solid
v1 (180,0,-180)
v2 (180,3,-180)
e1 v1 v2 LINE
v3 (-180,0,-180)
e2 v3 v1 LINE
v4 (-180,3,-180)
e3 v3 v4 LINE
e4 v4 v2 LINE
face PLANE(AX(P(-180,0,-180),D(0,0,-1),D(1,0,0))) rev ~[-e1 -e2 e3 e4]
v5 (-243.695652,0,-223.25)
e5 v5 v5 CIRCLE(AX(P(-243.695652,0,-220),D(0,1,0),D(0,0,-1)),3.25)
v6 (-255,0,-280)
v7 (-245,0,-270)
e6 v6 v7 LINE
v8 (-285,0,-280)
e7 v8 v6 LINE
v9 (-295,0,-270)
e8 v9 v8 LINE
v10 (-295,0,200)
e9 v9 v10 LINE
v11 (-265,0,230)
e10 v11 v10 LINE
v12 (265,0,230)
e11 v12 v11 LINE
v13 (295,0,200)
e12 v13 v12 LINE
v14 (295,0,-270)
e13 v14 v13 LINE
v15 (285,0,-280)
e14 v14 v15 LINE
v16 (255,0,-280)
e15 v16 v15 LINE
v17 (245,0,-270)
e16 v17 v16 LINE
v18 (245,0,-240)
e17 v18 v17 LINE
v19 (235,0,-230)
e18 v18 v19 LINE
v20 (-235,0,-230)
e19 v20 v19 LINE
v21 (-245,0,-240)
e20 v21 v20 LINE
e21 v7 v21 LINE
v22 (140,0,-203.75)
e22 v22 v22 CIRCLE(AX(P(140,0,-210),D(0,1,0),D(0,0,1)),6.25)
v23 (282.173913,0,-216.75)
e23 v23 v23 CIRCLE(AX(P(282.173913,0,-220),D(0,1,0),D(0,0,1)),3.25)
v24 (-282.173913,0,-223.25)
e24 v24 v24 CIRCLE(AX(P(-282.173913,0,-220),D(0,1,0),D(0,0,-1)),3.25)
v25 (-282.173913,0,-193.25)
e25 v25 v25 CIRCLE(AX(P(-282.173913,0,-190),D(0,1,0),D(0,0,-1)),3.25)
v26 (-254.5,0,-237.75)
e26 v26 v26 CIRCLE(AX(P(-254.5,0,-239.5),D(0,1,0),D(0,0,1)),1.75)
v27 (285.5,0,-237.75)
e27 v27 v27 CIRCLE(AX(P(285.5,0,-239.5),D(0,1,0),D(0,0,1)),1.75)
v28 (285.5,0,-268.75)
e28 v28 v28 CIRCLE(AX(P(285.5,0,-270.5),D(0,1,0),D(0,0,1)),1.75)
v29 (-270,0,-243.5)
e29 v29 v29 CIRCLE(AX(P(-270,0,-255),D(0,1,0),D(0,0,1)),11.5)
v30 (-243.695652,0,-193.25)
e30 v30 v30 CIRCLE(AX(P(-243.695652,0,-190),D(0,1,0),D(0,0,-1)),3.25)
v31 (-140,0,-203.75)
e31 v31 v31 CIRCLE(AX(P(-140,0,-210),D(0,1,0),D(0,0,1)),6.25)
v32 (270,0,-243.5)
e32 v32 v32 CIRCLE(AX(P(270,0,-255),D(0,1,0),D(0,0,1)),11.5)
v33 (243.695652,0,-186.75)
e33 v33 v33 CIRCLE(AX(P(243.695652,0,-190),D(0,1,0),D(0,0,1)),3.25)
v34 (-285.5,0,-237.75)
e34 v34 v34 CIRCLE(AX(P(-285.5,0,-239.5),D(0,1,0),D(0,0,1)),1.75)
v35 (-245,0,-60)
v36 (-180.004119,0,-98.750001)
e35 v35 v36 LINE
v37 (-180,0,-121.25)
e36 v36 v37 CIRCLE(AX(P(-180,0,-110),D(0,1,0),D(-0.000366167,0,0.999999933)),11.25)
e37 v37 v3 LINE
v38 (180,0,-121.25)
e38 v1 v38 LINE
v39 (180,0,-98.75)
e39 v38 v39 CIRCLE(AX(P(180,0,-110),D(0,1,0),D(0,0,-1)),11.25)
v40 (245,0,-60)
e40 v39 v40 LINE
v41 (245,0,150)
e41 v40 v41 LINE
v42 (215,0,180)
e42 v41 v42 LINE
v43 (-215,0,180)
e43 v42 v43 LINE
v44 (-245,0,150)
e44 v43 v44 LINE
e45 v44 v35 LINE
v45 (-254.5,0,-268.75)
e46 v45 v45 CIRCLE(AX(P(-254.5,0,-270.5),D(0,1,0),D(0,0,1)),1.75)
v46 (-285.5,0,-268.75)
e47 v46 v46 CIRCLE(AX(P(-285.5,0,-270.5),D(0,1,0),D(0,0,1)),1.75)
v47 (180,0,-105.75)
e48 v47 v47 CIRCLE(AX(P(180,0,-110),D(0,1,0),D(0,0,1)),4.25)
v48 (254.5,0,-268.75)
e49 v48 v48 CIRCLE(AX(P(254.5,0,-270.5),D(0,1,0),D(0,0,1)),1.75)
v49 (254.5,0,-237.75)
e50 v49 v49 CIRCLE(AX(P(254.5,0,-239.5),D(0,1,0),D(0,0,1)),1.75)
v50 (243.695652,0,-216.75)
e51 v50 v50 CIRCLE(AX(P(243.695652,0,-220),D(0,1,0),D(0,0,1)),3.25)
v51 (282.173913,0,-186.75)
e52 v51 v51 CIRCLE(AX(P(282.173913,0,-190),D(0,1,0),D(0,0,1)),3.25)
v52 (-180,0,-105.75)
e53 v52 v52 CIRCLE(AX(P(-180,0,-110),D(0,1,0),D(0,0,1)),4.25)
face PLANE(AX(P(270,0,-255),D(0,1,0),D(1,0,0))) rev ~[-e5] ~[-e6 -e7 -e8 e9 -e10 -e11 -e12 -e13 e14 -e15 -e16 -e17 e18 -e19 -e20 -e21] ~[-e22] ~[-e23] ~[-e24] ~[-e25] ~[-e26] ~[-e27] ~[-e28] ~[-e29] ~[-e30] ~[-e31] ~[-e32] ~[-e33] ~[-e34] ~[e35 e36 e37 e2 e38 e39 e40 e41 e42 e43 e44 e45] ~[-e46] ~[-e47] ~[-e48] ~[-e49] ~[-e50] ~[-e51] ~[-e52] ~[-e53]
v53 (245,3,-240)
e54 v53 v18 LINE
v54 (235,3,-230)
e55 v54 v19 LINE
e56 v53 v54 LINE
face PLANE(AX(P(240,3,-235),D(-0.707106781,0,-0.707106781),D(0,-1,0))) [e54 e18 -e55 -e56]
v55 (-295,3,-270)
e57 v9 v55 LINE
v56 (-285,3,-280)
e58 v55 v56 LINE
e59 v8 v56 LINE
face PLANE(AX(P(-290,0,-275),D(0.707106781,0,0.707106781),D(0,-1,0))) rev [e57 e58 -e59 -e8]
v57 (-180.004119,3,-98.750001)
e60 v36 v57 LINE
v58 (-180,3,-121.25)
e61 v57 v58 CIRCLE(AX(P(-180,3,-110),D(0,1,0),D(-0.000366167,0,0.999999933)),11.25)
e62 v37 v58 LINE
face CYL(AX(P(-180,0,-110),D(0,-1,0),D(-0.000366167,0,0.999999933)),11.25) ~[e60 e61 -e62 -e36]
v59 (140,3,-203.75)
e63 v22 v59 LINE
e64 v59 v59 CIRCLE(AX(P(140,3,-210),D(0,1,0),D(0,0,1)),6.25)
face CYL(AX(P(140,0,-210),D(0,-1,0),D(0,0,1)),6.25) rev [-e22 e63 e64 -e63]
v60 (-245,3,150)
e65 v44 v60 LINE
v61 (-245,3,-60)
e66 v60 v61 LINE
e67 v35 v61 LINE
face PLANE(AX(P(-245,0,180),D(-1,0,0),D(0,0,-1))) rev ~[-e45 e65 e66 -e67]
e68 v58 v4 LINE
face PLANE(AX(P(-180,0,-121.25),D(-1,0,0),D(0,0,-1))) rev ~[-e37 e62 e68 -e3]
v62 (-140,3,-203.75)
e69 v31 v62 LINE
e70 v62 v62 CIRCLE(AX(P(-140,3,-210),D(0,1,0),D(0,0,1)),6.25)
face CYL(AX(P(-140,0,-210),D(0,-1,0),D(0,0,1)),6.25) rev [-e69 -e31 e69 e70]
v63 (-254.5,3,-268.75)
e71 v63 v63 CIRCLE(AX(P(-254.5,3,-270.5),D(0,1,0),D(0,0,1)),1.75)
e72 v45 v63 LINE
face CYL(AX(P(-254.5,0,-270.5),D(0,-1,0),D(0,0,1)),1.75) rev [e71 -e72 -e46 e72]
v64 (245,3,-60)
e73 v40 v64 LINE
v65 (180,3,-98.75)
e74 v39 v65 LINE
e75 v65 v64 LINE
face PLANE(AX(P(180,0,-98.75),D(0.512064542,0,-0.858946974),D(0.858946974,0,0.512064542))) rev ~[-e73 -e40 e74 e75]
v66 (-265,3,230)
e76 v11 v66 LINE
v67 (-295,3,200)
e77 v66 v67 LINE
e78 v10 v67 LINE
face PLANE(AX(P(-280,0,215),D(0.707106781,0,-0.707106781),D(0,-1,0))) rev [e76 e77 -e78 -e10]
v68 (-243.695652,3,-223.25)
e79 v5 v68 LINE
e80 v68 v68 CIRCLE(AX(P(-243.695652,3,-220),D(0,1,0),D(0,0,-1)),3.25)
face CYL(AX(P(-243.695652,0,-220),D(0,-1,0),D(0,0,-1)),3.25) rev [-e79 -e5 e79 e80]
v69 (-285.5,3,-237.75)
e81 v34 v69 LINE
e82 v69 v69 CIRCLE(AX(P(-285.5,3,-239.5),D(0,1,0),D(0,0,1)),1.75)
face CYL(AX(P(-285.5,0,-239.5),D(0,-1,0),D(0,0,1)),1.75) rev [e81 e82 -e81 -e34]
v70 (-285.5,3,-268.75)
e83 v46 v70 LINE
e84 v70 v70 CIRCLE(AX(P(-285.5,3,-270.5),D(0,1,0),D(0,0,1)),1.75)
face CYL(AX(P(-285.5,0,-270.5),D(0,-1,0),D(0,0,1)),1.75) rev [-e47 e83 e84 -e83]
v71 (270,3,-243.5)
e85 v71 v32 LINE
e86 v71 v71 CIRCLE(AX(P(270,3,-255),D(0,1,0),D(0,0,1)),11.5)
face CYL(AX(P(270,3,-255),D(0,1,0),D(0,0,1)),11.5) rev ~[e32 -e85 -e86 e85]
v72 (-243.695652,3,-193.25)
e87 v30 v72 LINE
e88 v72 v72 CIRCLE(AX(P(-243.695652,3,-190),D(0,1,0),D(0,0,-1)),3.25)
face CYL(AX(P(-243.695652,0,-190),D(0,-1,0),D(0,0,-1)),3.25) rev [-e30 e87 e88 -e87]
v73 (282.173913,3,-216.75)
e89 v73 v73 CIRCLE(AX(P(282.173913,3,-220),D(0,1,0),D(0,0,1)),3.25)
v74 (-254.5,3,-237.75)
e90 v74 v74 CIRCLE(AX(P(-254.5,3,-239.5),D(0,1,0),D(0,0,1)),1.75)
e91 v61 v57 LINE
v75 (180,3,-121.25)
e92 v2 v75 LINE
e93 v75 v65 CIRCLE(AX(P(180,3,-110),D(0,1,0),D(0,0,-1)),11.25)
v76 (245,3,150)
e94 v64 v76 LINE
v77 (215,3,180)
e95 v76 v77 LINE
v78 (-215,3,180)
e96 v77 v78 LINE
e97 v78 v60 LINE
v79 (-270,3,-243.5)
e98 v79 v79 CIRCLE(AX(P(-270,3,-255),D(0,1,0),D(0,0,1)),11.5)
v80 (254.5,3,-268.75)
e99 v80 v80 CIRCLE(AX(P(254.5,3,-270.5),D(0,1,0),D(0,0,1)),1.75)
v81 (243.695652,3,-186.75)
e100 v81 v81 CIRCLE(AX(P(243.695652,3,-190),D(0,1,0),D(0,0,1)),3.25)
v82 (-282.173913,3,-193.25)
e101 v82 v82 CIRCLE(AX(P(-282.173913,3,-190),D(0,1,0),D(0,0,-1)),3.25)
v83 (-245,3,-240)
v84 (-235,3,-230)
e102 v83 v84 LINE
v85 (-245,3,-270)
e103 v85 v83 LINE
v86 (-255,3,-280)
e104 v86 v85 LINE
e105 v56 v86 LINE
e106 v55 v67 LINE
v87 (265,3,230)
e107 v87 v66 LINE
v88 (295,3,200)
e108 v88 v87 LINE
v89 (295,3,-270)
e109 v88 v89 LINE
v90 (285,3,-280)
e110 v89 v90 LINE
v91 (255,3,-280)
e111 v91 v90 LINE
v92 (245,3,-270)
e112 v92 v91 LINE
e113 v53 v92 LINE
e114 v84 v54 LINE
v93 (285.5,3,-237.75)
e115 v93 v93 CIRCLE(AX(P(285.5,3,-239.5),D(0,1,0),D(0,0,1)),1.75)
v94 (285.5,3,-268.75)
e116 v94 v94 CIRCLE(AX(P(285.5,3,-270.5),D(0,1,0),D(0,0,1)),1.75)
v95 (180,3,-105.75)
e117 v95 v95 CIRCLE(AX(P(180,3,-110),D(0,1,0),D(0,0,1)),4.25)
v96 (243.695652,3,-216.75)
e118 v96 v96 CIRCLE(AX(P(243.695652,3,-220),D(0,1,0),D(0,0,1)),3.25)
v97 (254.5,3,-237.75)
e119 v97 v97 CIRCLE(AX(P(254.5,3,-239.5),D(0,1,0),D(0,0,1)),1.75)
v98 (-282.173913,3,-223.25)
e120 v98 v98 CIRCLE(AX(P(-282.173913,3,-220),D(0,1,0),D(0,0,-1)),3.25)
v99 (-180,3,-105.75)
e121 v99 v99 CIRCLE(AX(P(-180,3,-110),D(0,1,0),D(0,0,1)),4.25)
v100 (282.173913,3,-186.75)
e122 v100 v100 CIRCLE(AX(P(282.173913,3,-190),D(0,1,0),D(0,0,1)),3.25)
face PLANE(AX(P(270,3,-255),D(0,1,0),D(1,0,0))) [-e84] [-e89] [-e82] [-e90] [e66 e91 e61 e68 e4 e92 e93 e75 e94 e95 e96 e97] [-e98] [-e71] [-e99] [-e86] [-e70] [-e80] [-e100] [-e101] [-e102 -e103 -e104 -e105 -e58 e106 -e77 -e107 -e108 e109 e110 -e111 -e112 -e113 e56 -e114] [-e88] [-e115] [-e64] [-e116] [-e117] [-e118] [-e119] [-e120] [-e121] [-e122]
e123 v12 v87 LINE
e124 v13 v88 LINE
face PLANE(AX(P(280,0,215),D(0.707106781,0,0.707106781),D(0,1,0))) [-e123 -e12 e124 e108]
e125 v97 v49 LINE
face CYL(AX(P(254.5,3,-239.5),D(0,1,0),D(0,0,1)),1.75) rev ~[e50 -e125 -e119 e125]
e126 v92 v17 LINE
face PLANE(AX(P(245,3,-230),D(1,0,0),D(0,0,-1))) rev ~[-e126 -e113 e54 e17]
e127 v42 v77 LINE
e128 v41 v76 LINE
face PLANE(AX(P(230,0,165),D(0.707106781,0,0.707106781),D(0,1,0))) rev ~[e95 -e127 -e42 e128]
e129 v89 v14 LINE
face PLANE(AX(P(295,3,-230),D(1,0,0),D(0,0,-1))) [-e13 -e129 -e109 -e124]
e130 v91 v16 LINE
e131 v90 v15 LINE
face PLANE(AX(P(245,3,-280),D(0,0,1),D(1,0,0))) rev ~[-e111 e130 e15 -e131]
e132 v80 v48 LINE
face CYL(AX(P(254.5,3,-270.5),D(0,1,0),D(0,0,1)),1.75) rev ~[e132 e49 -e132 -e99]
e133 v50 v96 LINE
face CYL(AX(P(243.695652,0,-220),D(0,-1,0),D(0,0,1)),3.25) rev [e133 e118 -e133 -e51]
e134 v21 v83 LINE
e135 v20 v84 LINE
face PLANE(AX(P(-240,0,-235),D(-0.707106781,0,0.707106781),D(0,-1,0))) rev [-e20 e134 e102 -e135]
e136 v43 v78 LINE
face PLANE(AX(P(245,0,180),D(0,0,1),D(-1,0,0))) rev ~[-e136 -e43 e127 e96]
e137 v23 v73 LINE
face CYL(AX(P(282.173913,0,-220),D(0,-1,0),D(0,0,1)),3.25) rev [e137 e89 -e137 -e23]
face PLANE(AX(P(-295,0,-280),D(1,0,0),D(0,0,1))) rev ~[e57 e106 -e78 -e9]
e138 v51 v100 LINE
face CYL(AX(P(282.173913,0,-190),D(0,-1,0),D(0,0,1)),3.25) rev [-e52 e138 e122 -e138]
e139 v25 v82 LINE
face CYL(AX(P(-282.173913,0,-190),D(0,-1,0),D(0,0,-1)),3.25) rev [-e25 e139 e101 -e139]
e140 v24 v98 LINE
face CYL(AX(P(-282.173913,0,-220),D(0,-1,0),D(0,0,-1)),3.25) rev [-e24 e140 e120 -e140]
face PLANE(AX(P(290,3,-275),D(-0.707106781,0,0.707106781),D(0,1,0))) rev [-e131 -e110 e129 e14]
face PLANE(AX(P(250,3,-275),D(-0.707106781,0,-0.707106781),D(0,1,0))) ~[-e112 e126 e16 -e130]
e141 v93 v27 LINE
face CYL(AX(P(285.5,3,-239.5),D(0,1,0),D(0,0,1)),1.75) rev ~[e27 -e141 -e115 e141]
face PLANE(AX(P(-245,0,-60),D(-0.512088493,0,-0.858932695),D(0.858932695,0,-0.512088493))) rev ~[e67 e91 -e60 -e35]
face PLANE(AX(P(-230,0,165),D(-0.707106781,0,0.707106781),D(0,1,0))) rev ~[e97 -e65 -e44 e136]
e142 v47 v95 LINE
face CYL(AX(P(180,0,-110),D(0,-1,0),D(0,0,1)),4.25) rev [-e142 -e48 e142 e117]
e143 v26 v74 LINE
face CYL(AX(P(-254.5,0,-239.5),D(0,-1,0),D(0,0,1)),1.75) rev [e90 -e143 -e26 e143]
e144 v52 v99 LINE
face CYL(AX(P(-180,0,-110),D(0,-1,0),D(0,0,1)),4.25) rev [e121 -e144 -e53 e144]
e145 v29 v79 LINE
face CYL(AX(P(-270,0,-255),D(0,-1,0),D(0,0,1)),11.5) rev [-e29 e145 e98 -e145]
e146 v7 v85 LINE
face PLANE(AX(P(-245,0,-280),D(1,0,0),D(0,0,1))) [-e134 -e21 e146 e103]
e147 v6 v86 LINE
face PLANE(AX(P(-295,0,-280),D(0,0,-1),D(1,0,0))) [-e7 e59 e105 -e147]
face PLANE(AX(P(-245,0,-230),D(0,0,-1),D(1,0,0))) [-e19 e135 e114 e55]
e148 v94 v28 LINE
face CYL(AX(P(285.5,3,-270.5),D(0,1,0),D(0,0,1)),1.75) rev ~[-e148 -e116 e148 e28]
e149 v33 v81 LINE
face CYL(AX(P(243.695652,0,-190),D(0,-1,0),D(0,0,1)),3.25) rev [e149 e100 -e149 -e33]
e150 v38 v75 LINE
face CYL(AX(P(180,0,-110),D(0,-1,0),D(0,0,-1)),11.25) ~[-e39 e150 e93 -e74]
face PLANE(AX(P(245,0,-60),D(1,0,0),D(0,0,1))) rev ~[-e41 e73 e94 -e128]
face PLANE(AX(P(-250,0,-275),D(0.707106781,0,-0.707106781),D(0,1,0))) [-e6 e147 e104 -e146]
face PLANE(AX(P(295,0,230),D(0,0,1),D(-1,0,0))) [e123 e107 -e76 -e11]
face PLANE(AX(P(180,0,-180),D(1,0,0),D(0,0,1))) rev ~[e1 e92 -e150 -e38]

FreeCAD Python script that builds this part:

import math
import FreeCAD as App
import Part
import Sketcher

V = App.Vector
Q = App.Units.Quantity


def edges_at(feature, points):
    """Names of the edges that pass closest to the given points."""
    edges = feature.Shape.Edges
    near = lambda p: min(range(len(edges)), key=lambda i: edges[i].distToShape(Part.Vertex(*p))[0])
    return sorted({f"Edge{near(p) + 1}" for p in points})

doc = App.newDocument("Part")
body = doc.addObject("PartDesign::Body", "Body")

sketch1 = body.newObject("Sketcher::SketchObject", "Sketch")
sketch1.AttachmentSupport = (doc.getObject("XZ_Plane"), [""])
sketch1.MapMode = "FlatFace"
sketch1.addGeometry([
    Part.LineSegment(V(295, -230, 0), V(-245, -230, 0)),
    Part.LineSegment(V(-245, -230, 0), V(-245, -280, 0)),
    Part.LineSegment(V(-245, -280, 0), V(-295, -280, 0)),
    Part.LineSegment(V(-295, -280, 0), V(-295, 230, 0)),
    Part.LineSegment(V(-295, 230, 0), V(295, 230, 0)),
    Part.LineSegment(V(295, 230, 0), V(295, -230, 0)),
    Part.LineSegment(V(-180, -180, 0), V(180, -180, 0)),
    Part.LineSegment(V(180, -180, 0), V(180, -121.25, 0)),
    Part.ArcOfCircle(Part.Circle(V(180, -110, 0), V(0, 0, 1), 11.25), math.radians(90), math.radians(270)),
    Part.LineSegment(V(180, -98.75, 0), V(245, -60, 0)),
    Part.LineSegment(V(245, -60, 0), V(245, 180, 0)),
    Part.LineSegment(V(245, 180, 0), V(-245, 180, 0)),
    Part.LineSegment(V(-245, 180, 0), V(-245, -60, 0)),
    Part.LineSegment(V(-245, -60, 0), V(-180.004119, -98.750001, 0)),
    Part.ArcOfCircle(Part.Circle(V(-180, -110, 0), V(0, 0, 1), 11.25), math.radians(-90), math.radians(90.02098)),
    Part.LineSegment(V(-180, -121.25, 0), V(-180, -180, 0)),
    Part.Circle(V(180, -110, 0), V(0, 0, 1), 4.25),
    Part.Circle(V(282.173913, -190, 0), V(0, 0, 1), 3.25),
    Part.Circle(V(243.695652, -190, 0), V(0, 0, 1), 3.25),
    Part.Circle(V(282.173913, -220, 0), V(0, 0, 1), 3.25),
    Part.Circle(V(243.695652, -220, 0), V(0, 0, 1), 3.25),
    Part.Circle(V(140, -210, 0), V(0, 0, 1), 6.25),
    Part.Circle(V(-180, -110, 0), V(0, 0, 1), 4.25),
    Part.Circle(V(-140, -210, 0), V(0, 0, 1), 6.25),
    Part.Circle(V(-243.695652, -190, 0), V(0, 0, 1), 3.25),
    Part.Circle(V(-282.173913, -190, 0), V(0, 0, 1), 3.25),
    Part.Circle(V(-243.695652, -220, 0), V(0, 0, 1), 3.25),
    Part.Circle(V(-282.173913, -220, 0), V(0, 0, 1), 3.25),
    Part.Circle(V(-254.5, -239.5, 0), V(0, 0, 1), 1.75),
    Part.Circle(V(-285.5, -239.5, 0), V(0, 0, 1), 1.75),
    Part.Circle(V(-270, -255, 0), V(0, 0, 1), 11.5),
    Part.Circle(V(-254.5, -270.5, 0), V(0, 0, 1), 1.75),
    Part.Circle(V(-285.5, -270.5, 0), V(0, 0, 1), 1.75),
], False)
sketch1.addConstraint([
    Sketcher.Constraint("Coincident", 0, 2, 1, 1),
    Sketcher.Constraint("Coincident", 1, 2, 2, 1),
    Sketcher.Constraint("Coincident", 2, 2, 3, 1),
    Sketcher.Constraint("Coincident", 3, 2, 4, 1),
    Sketcher.Constraint("Coincident", 4, 2, 5, 1),
    Sketcher.Constraint("Coincident", 5, 2, 0, 1),
    Sketcher.Constraint("Coincident", 6, 2, 7, 1),
    Sketcher.Constraint("Coincident", 7, 2, 8, 2),
    Sketcher.Constraint("Coincident", 8, 1, 9, 1),
    Sketcher.Constraint("Coincident", 9, 2, 10, 1),
    Sketcher.Constraint("Coincident", 10, 2, 11, 1),
    Sketcher.Constraint("Coincident", 11, 2, 12, 1),
    Sketcher.Constraint("Coincident", 12, 2, 13, 1),
    Sketcher.Constraint("Coincident", 13, 2, 14, 2),
    Sketcher.Constraint("Coincident", 14, 1, 15, 1),
    Sketcher.Constraint("Coincident", 15, 2, 6, 1),
    Sketcher.Constraint("Horizontal", 0),
    Sketcher.Constraint("Vertical", 1),
    Sketcher.Constraint("Horizontal", 2),
    Sketcher.Constraint("Vertical", 3),
    Sketcher.Constraint("Horizontal", 4),
    Sketcher.Constraint("Vertical", 5),
    Sketcher.Constraint("Horizontal", 6),
    Sketcher.Constraint("Vertical", 7),
    Sketcher.Constraint("Vertical", 10),
    Sketcher.Constraint("Horizontal", 11),
    Sketcher.Constraint("Vertical", 12),
    Sketcher.Constraint("Vertical", 15),
    Sketcher.Constraint("Coincident", 16, 3, 8, 3),
    Sketcher.Constraint("Coincident", 22, 3, 14, 3),
    Sketcher.Constraint("Equal", 8, 14),
    Sketcher.Constraint("Equal", 17, 18),
    Sketcher.Constraint("Equal", 18, 19),
    Sketcher.Constraint("Equal", 19, 20),
    Sketcher.Constraint("Equal", 16, 22),
    Sketcher.Constraint("Equal", 21, 23),
    Sketcher.Constraint("Equal", 20, 24),
    Sketcher.Constraint("Equal", 24, 25),
    Sketcher.Constraint("Equal", 25, 26),
    Sketcher.Constraint("Equal", 26, 27),
    Sketcher.Constraint("Equal", 28, 29),
    Sketcher.Constraint("Equal", 29, 31),
    Sketcher.Constraint("Equal", 31, 32),
    Sketcher.Constraint("Symmetric", 3, 2, 5, 2, -1, 1),
    Sketcher.Constraint("Symmetric", 8, 3, 14, 3, -2),
    Sketcher.Constraint("Symmetric", 21, 3, 23, 3, -2),
    Sketcher.Constraint("Symmetric", 18, 3, 24, 3, -2),
    Sketcher.Constraint("Symmetric", 17, 3, 25, 3, -2),
    Sketcher.Constraint("Symmetric", 20, 3, 26, 3, -2),
    Sketcher.Constraint("Symmetric", 19, 3, 27, 3, -2),
    Sketcher.Constraint("Symmetric", 9, 2, 12, 2, -2),
    Sketcher.Constraint("Horizontal", 17, 3, 18, 3),
    Sketcher.Constraint("Horizontal", 19, 3, 20, 3),
    Sketcher.Constraint("Horizontal", 28, 3, 29, 3),
    Sketcher.Constraint("Horizontal", 31, 3, 32, 3),
    Sketcher.Constraint("Vertical", 17, 3, 19, 3),
    Sketcher.Constraint("Vertical", 18, 3, 20, 3),
    Sketcher.Constraint("Vertical", 28, 3, 31, 3),
    Sketcher.Constraint("Vertical", 29, 3, 32, 3),
    Sketcher.Constraint("Vertical", 16, 3, 6, 2),
    Sketcher.Constraint("Vertical", 7, 2, 8, 1),
    Sketcher.Constraint("Vertical", 1, 2, 11, 2),
    Sketcher.Constraint("Vertical", 22, 3, 14, 1),
    Sketcher.Constraint("Equal", 2, 1),
    Sketcher.Constraint("Diameter", 30, Q("23 mm")),
    Sketcher.Constraint("Diameter", 16, Q("8.5 mm")),
    Sketcher.Constraint("Diameter", 17, Q("6.5 mm")),
    Sketcher.Constraint("Diameter", 21, Q("12.5 mm")),
    Sketcher.Constraint("Diameter", 28, Q("3.5 mm")),
    Sketcher.Constraint("DistanceX", 0, 2, 0, 1, Q("540 mm")),
    Sketcher.Constraint("DistanceX", 2, 2, 2, 1, Q("50 mm")),
    Sketcher.Constraint("DistanceX", 6, 1, 6, 2, Q("360 mm")),
    Sketcher.Constraint("DistanceY", 3, 1, 3, 2, Q("510 mm")),
    Sketcher.Constraint("DistanceY", 10, 1, 10, 2, Q("240 mm")),
    Sketcher.Constraint("Radius", 8, Q("11.25 mm")),
    Sketcher.Constraint("DistanceY", 8, 3, -1, 1, Q("110 mm")),
    Sketcher.Constraint("DistanceY", 17, 3, -1, 1, Q("190 mm")),
    Sketcher.Constraint("DistanceY", 19, 3, -1, 1, Q("220 mm")),
    Sketcher.Constraint("DistanceX", -1, 1, 21, 3, Q("140 mm")),
    Sketcher.Constraint("DistanceY", 21, 3, -1, 1, Q("210 mm")),
    Sketcher.Constraint("DistanceX", 30, 3, -1, 1, Q("270 mm")),
    Sketcher.Constraint("DistanceY", 30, 3, -1, 1, Q("255 mm")),
    Sketcher.Constraint("DistanceY", 6, 2, -1, 1, Q("180 mm")),
    Sketcher.Constraint("DistanceY", 9, 2, -1, 1, Q("60 mm")),
    Sketcher.Constraint("DistanceX", 29, 3, 28, 3, Q("31 mm")),
    Sketcher.Constraint("DistanceY", 31, 3, 28, 3, Q("31 mm")),
    Sketcher.Constraint("DistanceX", 28, 3, -1, 1, Q("254.5 mm")),
    Sketcher.Constraint("DistanceY", 28, 3, -1, 1, Q("239.5 mm")),
    Sketcher.Constraint("DistanceX", 13, 2, -1, 1, Q("180.004119 mm")),
    Sketcher.Constraint("DistanceX", 18, 3, 17, 3, Q("38.478261 mm")),
    Sketcher.Constraint("DistanceX", -1, 1, 17, 3, Q("282.173913 mm")),
])
pad1 = body.newObject("PartDesign::Pad", "Pad")
pad1.Profile = sketch1
pad1.Length = 3
pad1.Reversed = True

sketch2 = body.newObject("Sketcher::SketchObject", "Sketch001")
sketch2.AttachmentSupport = (doc.getObject("XZ_Plane"), [""])
sketch2.MapMode = "FlatFace"
sketch2.AttachmentOffset = App.Placement(V(0, 0, -3), App.Rotation())
sketch2.addGeometry([
    Part.LineSegment(V(245, -280, 0), V(245, -230, 0)),
    Part.LineSegment(V(245, -230, 0), V(295, -230, 0)),
    Part.LineSegment(V(295, -230, 0), V(295, -280, 0)),
    Part.LineSegment(V(295, -280, 0), V(245, -280, 0)),
    Part.Circle(V(254.5, -239.5, 0), V(0, 0, 1), 1.75),
    Part.Circle(V(285.5, -239.5, 0), V(0, 0, 1), 1.75),
    Part.Circle(V(254.5, -270.5, 0), V(0, 0, 1), 1.75),
    Part.Circle(V(270, -255, 0), V(0, 0, 1), 11.5),
    Part.Circle(V(285.5, -270.5, 0), V(0, 0, 1), 1.75),
], False)
sketch2.addConstraint([
    Sketcher.Constraint("Coincident", 0, 2, 1, 1),
    Sketcher.Constraint("Coincident", 1, 2, 2, 1),
    Sketcher.Constraint("Coincident", 2, 2, 3, 1),
    Sketcher.Constraint("Coincident", 3, 2, 0, 1),
    Sketcher.Constraint("Vertical", 0),
    Sketcher.Constraint("Horizontal", 1),
    Sketcher.Constraint("Vertical", 2),
    Sketcher.Constraint("Horizontal", 3),
    Sketcher.Constraint("Equal", 4, 5),
    Sketcher.Constraint("Equal", 5, 6),
    Sketcher.Constraint("Equal", 6, 8),
    Sketcher.Constraint("Horizontal", 4, 3, 5, 3),
    Sketcher.Constraint("Horizontal", 6, 3, 8, 3),
    Sketcher.Constraint("Vertical", 4, 3, 6, 3),
    Sketcher.Constraint("Vertical", 5, 3, 8, 3),
    Sketcher.Constraint("Equal", 3, 0),
    Sketcher.Constraint("Diameter", 7, Q("23 mm")),
    Sketcher.Constraint("Diameter", 4, Q("3.5 mm")),
    Sketcher.Constraint("DistanceX", 1, 1, 1, 2, Q("50 mm")),
    Sketcher.Constraint("DistanceX", -1, 1, 7, 3, Q("270 mm")),
    Sketcher.Constraint("DistanceY", 7, 3, -1, 1, Q("255 mm")),
    Sketcher.Constraint("DistanceX", -1, 1, 0, 2, Q("245 mm")),
    Sketcher.Constraint("DistanceY", 0, 2, -1, 1, Q("230 mm")),
    Sketcher.Constraint("DistanceX", 4, 3, 5, 3, Q("31 mm")),
    Sketcher.Constraint("DistanceY", 6, 3, 4, 3, Q("31 mm")),
    Sketcher.Constraint("DistanceX", -1, 1, 4, 3, Q("254.5 mm")),
    Sketcher.Constraint("DistanceY", 4, 3, -1, 1, Q("239.5 mm")),
])
pad2 = body.newObject("PartDesign::Pad", "Pad001")
pad2.Profile = sketch2
pad2.Length = 3
doc.recompute()

chamfer = body.newObject("PartDesign::Chamfer", "Chamfer")
chamfer.Base = (pad2, edges_at(pad2, [
    (-295, 1.5, -280),
    (-245, 1.5, -280),
    (-245, 1.5, -230),
    (245, 1.5, -280),
    (245, 1.5, -230),
    (295, 1.5, -280),
]))
chamfer.Size = 10
doc.recompute()

chamfer2 = body.newObject("PartDesign::Chamfer", "Chamfer001")
chamfer2.Base = (chamfer, edges_at(chamfer, [
    (295, 1.5, 230),
    (-295, 1.5, 230),
    (245, 1.5, 180),
    (-245, 1.5, 180),
]))
chamfer2.Size = 30

doc.recompute()
